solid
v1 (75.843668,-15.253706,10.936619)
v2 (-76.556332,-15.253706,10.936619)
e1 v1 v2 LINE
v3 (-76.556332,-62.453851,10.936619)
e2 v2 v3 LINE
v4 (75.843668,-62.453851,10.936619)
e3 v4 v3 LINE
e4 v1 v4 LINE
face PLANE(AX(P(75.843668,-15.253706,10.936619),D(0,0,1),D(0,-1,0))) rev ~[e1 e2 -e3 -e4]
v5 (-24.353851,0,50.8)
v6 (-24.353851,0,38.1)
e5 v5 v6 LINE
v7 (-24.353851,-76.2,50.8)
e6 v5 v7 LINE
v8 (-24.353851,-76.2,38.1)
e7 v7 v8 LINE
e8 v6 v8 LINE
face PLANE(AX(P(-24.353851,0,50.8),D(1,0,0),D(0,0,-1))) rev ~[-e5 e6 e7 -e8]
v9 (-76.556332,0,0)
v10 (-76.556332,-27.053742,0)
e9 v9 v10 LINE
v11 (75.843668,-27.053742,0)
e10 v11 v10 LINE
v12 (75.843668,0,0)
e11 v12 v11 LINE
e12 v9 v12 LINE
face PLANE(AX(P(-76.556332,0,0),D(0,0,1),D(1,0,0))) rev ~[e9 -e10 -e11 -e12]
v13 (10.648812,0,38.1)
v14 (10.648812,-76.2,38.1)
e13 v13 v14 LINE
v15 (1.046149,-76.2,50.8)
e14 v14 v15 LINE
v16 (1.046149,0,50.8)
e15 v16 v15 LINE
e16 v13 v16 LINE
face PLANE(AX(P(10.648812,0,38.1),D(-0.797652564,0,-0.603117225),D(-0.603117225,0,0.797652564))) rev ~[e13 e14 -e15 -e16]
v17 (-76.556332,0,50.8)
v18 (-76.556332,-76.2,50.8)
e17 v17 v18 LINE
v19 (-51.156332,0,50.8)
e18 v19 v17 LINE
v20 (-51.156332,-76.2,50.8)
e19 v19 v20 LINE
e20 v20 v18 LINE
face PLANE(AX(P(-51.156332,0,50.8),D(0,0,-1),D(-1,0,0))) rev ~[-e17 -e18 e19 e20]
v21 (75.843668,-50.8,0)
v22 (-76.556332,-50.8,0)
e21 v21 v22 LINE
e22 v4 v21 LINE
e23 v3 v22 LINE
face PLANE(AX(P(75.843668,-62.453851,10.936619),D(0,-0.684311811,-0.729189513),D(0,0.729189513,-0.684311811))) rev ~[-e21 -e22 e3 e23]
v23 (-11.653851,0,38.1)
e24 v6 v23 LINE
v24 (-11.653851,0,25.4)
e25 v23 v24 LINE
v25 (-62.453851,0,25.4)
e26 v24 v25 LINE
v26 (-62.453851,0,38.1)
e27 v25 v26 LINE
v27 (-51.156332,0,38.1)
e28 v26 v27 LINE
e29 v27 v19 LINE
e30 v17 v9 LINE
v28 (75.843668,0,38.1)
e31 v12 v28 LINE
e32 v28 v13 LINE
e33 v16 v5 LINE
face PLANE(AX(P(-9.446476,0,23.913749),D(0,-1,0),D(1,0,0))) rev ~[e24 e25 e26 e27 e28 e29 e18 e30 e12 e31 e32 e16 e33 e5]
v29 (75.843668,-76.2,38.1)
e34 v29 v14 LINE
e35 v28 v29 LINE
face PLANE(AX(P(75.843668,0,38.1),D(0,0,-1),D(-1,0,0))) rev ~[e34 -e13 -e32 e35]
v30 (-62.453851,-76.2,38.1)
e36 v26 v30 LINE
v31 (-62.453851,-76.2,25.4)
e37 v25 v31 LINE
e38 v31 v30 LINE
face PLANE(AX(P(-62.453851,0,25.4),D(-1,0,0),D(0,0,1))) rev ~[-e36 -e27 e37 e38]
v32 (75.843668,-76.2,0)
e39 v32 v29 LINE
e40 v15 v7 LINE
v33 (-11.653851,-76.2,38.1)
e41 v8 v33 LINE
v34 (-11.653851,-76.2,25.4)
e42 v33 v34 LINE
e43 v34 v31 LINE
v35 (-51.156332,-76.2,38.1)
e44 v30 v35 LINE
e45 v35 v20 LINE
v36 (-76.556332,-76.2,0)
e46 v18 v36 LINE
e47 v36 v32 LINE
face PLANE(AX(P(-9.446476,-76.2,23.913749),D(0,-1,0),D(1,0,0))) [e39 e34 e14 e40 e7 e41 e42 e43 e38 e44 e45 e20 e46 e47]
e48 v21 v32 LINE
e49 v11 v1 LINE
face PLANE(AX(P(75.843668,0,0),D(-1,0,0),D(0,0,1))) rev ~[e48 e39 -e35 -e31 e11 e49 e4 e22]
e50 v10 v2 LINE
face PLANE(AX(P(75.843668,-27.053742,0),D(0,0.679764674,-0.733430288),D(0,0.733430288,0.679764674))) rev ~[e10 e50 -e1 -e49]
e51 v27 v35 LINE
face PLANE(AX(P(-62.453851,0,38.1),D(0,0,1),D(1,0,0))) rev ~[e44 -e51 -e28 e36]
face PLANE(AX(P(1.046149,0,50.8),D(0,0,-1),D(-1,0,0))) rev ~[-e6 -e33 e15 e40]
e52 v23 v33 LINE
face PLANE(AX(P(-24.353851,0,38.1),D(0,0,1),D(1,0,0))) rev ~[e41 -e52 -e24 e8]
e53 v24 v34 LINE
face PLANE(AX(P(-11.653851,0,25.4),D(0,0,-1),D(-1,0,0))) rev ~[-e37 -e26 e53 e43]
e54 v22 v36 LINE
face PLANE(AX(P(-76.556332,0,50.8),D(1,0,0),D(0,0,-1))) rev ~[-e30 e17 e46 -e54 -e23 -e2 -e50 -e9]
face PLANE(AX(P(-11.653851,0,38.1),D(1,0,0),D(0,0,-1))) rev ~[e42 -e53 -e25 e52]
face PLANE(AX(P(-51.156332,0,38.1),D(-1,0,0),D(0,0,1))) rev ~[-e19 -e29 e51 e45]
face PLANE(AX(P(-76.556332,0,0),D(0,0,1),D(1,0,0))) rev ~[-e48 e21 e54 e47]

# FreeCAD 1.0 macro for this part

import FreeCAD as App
import Part
import Sketcher
from FreeCAD import Vector
Q = App.Units.Quantity

doc = App.newDocument("Part")
body = doc.addObject("PartDesign::Body", "Body")

# Sketch on XZ plane
sketch1 = doc.addObject("Sketcher::SketchObject", "Sketch")
body.addObject(sketch1)
sketch1.AttachmentSupport = (doc.XZ_Plane, [""])
sketch1.MapMode = "FlatFace"
sketch1.addGeometry(Part.LineSegment(Vector(-77, 51, 0), Vector(-77, 0, 0)), False)
sketch1.addGeometry(Part.LineSegment(Vector(-77, 0, 0), Vector(76, 0, 0)), False)
sketch1.addGeometry(Part.LineSegment(Vector(76, 0, 0), Vector(76, 38, 0)), False)
sketch1.addGeometry(Part.LineSegment(Vector(76, 38, 0), Vector(11, 38, 0)), False)
sketch1.addGeometry(Part.LineSegment(Vector(11, 38, 0), Vector(1, 51, 0)), False)
sketch1.addGeometry(Part.LineSegment(Vector(1, 51, 0), Vector(-24, 51, 0)), False)
sketch1.addGeometry(Part.LineSegment(Vector(-24, 51, 0), Vector(-24, 38, 0)), False)
sketch1.addGeometry(Part.LineSegment(Vector(-24, 38, 0), Vector(-12, 38, 0)), False)
sketch1.addGeometry(Part.LineSegment(Vector(-12, 38, 0), Vector(-12, 25, 0)), False)
sketch1.addGeometry(Part.LineSegment(Vector(-12, 25, 0), Vector(-62, 25, 0)), False)
sketch1.addGeometry(Part.LineSegment(Vector(-62, 25, 0), Vector(-62, 38, 0)), False)
sketch1.addGeometry(Part.LineSegment(Vector(-62, 38, 0), Vector(-51, 38, 0)), False)
sketch1.addGeometry(Part.LineSegment(Vector(-51, 38, 0), Vector(-51, 51, 0)), False)
sketch1.addGeometry(Part.LineSegment(Vector(-51, 51, 0), Vector(-77, 51, 0)), False)
sketch1.addConstraint(Sketcher.Constraint("Coincident", 0, 2, 1, 1))
sketch1.addConstraint(Sketcher.Constraint("Coincident", 1, 2, 2, 1))
sketch1.addConstraint(Sketcher.Constraint("Coincident", 2, 2, 3, 1))
sketch1.addConstraint(Sketcher.Constraint("Coincident", 3, 2, 4, 1))
sketch1.addConstraint(Sketcher.Constraint("Coincident", 4, 2, 5, 1))
sketch1.addConstraint(Sketcher.Constraint("Coincident", 5, 2, 6, 1))
sketch1.addConstraint(Sketcher.Constraint("Coincident", 6, 2, 7, 1))
sketch1.addConstraint(Sketcher.Constraint("Coincident", 7, 2, 8, 1))
sketch1.addConstraint(Sketcher.Constraint("Coincident", 8, 2, 9, 1))
sketch1.addConstraint(Sketcher.Constraint("Coincident", 9, 2, 10, 1))
sketch1.addConstraint(Sketcher.Constraint("Coincident", 10, 2, 11, 1))
sketch1.addConstraint(Sketcher.Constraint("Coincident", 11, 2, 12, 1))
sketch1.addConstraint(Sketcher.Constraint("Coincident", 12, 2, 13, 1))
sketch1.addConstraint(Sketcher.Constraint("Coincident", 13, 2, 0, 1))
sketch1.addConstraint(Sketcher.Constraint("Vertical", 0))
sketch1.addConstraint(Sketcher.Constraint("Horizontal", 1))
sketch1.addConstraint(Sketcher.Constraint("Vertical", 2))
sketch1.addConstraint(Sketcher.Constraint("Horizontal", 3))
sketch1.addConstraint(Sketcher.Constraint("Horizontal", 5))
sketch1.addConstraint(Sketcher.Constraint("Vertical", 6))
sketch1.addConstraint(Sketcher.Constraint("Horizontal", 7))
sketch1.addConstraint(Sketcher.Constraint("Vertical", 8))
sketch1.addConstraint(Sketcher.Constraint("Horizontal", 9))
sketch1.addConstraint(Sketcher.Constraint("Vertical", 10))
sketch1.addConstraint(Sketcher.Constraint("Horizontal", 11))
sketch1.addConstraint(Sketcher.Constraint("Vertical", 12))
sketch1.addConstraint(Sketcher.Constraint("Horizontal", 13))
sketch1.addConstraint(Sketcher.Constraint("PointOnObject", 0, 2, -1))
sketch1.addConstraint(Sketcher.Constraint("Horizontal", 3, 2, 6, 2))
sketch1.addConstraint(Sketcher.Constraint("Horizontal", 7, 2, 10, 2))
sketch1.addConstraint(Sketcher.Constraint("Horizontal", 5, 2, 12, 2))
sketch1.addConstraint(Sketcher.Constraint("Equal", 5, 13))
sketch1.addConstraint(Sketcher.Constraint("Equal", 9, 0))
sketch1.addConstraint(Sketcher.Constraint("Equal", 7, 6))
sketch1.addConstraint(Sketcher.Constraint("Equal", 6, 8))
sketch1.addConstraint(Sketcher.Constraint("DistanceX", 1, 1, 1, 2, Q("6 in")))
sketch1.addConstraint(Sketcher.Constraint("DistanceX", 5, 2, 5, 1, Q("1 in")))
sketch1.addConstraint(Sketcher.Constraint("DistanceX", 9, 2, 9, 1, Q("2 in")))
sketch1.addConstraint(Sketcher.Constraint("DistanceX", 7, 1, 7, 2, Q("0.5 in")))
sketch1.addConstraint(Sketcher.Constraint("DistanceX", 11, 1, 11, 2, Q("11.297519 mm")))
sketch1.addConstraint(Sketcher.Constraint("Distance", 4, Q("15.921719 mm")))
sketch1.addConstraint(Sketcher.Constraint("DistanceX", 0, 2, -1, 1, Q("76.556332 mm")))
pad1 = doc.addObject("PartDesign::Pad", "Pad")
body.addObject(pad1)
pad1.Profile = sketch1
pad1.Length = Q("3 in")

# Sketch on YZ plane
sketch2 = doc.addObject("Sketcher::SketchObject", "Sketch001")
body.addObject(sketch2)
sketch2.AttachmentSupport = (doc.YZ_Plane, [""])
sketch2.MapMode = "FlatFace"
sketch2.AttachmentOffset = App.Placement(Vector(0, 0, 75.843668), App.Rotation())
sketch2.addGeometry(Part.LineSegment(Vector(-62, 11, 0), Vector(-51, 0, 0)), False)
sketch2.addGeometry(Part.LineSegment(Vector(-51, 0, 0), Vector(-27, 0, 0)), False)
sketch2.addGeometry(Part.LineSegment(Vector(-27, 0, 0), Vector(-15, 11, 0)), False)
sketch2.addGeometry(Part.LineSegment(Vector(-15, 11, 0), Vector(-62, 11, 0)), False)
sketch2.addConstraint(Sketcher.Constraint("Coincident", 0, 2, 1, 1))
sketch2.addConstraint(Sketcher.Constraint("Coincident", 1, 2, 2, 1))
sketch2.addConstraint(Sketcher.Constraint("Coincident", 2, 2, 3, 1))
sketch2.addConstraint(Sketcher.Constraint("Coincident", 3, 2, 0, 1))
sketch2.addConstraint(Sketcher.Constraint("Horizontal", 1))
sketch2.addConstraint(Sketcher.Constraint("Horizontal", 3))
sketch2.addConstraint(Sketcher.Constraint("PointOnObject", 0, 2, -1))
sketch2.addConstraint(Sketcher.Constraint("DistanceX", 0, 2, -1, 1, Q("2 in")))
sketch2.addConstraint(Sketcher.Constraint("Distance", 2, Q("16.088831 mm")))
sketch2.addConstraint(Sketcher.Constraint("DistanceX", 1, 1, 1, 2, Q("23.746258 mm")))
sketch2.addConstraint(Sketcher.Constraint("DistanceX", 3, 2, 3, 1, Q("47.200145 mm")))
sketch2.addConstraint(Sketcher.Constraint("DistanceY", -1, 1, 2, 2, Q("10.936619 mm")))
pocket1 = doc.addObject("PartDesign::Pocket", "Pocket")
body.addObject(pocket1)
pocket1.Profile = sketch2
pocket1.Type = "ThroughAll"

doc.recompute()
